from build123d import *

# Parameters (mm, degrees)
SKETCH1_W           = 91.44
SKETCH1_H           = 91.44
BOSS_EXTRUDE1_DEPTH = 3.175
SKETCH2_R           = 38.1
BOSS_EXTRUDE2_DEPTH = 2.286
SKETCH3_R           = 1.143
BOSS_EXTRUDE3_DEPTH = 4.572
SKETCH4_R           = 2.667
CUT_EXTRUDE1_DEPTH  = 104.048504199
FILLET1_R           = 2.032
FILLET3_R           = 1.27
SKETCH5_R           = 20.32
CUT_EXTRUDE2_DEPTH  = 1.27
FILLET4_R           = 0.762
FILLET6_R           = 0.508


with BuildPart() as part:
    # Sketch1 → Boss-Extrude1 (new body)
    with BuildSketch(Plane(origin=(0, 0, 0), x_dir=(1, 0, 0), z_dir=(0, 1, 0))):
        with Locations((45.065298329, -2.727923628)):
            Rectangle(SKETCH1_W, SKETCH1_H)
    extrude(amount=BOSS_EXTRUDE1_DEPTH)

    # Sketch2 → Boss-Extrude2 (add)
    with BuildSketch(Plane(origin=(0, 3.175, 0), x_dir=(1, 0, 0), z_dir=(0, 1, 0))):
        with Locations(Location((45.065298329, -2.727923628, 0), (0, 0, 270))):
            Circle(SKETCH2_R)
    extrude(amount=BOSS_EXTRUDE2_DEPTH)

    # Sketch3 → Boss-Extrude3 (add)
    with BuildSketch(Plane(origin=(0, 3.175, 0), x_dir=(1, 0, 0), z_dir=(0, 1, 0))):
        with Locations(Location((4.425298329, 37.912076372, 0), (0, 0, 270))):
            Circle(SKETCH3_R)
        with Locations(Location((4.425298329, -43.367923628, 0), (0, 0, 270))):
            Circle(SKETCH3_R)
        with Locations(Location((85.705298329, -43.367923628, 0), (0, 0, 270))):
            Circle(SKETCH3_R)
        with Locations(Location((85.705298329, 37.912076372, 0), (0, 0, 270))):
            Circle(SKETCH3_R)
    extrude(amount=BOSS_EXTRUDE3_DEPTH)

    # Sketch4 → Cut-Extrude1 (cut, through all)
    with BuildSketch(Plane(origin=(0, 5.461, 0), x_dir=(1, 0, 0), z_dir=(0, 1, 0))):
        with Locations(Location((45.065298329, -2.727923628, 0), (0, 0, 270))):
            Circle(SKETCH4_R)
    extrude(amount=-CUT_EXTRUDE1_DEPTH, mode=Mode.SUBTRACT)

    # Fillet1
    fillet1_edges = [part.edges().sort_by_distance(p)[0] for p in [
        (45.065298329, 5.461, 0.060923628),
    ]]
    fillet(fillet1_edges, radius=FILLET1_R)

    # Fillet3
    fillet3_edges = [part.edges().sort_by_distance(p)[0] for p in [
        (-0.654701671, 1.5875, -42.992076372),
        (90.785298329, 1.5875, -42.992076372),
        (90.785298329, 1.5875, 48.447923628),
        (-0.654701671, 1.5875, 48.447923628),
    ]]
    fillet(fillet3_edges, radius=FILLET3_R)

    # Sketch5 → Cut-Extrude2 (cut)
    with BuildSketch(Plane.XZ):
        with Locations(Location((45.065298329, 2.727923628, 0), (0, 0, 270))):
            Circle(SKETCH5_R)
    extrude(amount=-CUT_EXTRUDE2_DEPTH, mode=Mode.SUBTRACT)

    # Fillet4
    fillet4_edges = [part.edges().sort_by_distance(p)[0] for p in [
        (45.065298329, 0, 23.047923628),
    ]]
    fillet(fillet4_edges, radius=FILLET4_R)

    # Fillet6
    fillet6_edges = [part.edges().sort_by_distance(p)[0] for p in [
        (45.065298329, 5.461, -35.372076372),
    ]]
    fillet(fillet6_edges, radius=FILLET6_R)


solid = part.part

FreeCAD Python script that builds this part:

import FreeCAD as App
import Part
import Sketcher

V = App.Vector
Q = App.Units.Quantity


def edges_at(feature, points):
    """Names of the edges that pass closest to the given points."""
    edges = feature.Shape.Edges
    near = lambda p: min(range(len(edges)), key=lambda i: edges[i].distToShape(Part.Vertex(*p))[0])
    return sorted({f"Edge{near(p) + 1}" for p in points})

doc = App.newDocument("Part")
body = doc.addObject("PartDesign::Body", "Body")

sketch1 = body.newObject("Sketcher::SketchObject", "Sketch")
sketch1.AttachmentSupport = (doc.getObject("XZ_Plane"), [""])
sketch1.MapMode = "FlatFace"
sketch1.addGeometry([
    Part.LineSegment(V(-1, -43, 0), V(-1, 48, 0)),
    Part.LineSegment(V(-1, 48, 0), V(91, 48, 0)),
    Part.LineSegment(V(91, 48, 0), V(91, -43, 0)),
    Part.LineSegment(V(91, -43, 0), V(-1, -43, 0)),
], False)
sketch1.addConstraint([
    Sketcher.Constraint("Coincident", 0, 2, 1, 1),
    Sketcher.Constraint("Coincident", 1, 2, 2, 1),
    Sketcher.Constraint("Coincident", 2, 2, 3, 1),
    Sketcher.Constraint("Coincident", 3, 2, 0, 1),
    Sketcher.Constraint("Vertical", 0),
    Sketcher.Constraint("Horizontal", 1),
    Sketcher.Constraint("Vertical", 2),
    Sketcher.Constraint("Horizontal", 3),
    Sketcher.Constraint("Equal", 3, 0),
    Sketcher.Constraint("DistanceX", 1, 1, 1, 2, Q("3.6 in")),
    Sketcher.Constraint("DistanceX", 0, 2, -1, 1, Q("0.654702 mm")),
    Sketcher.Constraint("DistanceY", -1, 1, 0, 2, Q("48.447924 mm")),
])
pad1 = body.newObject("PartDesign::Pad", "Pad")
pad1.Profile = sketch1
pad1.Length = Q("0.125 in")
pad1.Reversed = True

sketch2 = body.newObject("Sketcher::SketchObject", "Sketch001")
sketch2.AttachmentSupport = (doc.getObject("XZ_Plane"), [""])
sketch2.MapMode = "FlatFace"
sketch2.AttachmentOffset = App.Placement(V(0, 0, -0.125 * 25.4), App.Rotation())
sketch2.addGeometry(Part.Circle(V(45, 3, 0), V(0, 0, 1), 38), False)
sketch2.addConstraint([
    Sketcher.Constraint("Diameter", 0, Q("3 in")),
    Sketcher.Constraint("DistanceX", -1, 1, 0, 3, Q("45.065298 mm")),
    Sketcher.Constraint("DistanceY", -1, 1, 0, 3, Q("2.727924 mm")),
])
pad2 = body.newObject("PartDesign::Pad", "Pad001")
pad2.Profile = sketch2
pad2.Length = Q("0.09 in")
pad2.Reversed = True

sketch3 = body.newObject("Sketcher::SketchObject", "Sketch002")
sketch3.AttachmentSupport = (doc.getObject("XZ_Plane"), [""])
sketch3.MapMode = "FlatFace"
sketch3.AttachmentOffset = App.Placement(V(0, 0, -0.125 * 25.4), App.Rotation())
sketch3.addGeometry([
    Part.Circle(V(4.4, -37.9, 0), V(0, 0, 1), 1.1),
    Part.Circle(V(4.4, 43.4, 0), V(0, 0, 1), 1.1),
    Part.Circle(V(85.7, 43.4, 0), V(0, 0, 1), 1.1),
    Part.Circle(V(85.7, -37.9, 0), V(0, 0, 1), 1.1),
], False)
sketch3.addConstraint([
    Sketcher.Constraint("Equal", 0, 1),
    Sketcher.Constraint("Equal", 1, 2),
    Sketcher.Constraint("Equal", 2, 3),
    Sketcher.Constraint("Horizontal", 1, 3, 2, 3),
    Sketcher.Constraint("Horizontal", 0, 3, 3, 3),
    Sketcher.Constraint("Vertical", 0, 3, 1, 3),
    Sketcher.Constraint("Vertical", 2, 3, 3, 3),
    Sketcher.Constraint("Diameter", 0, Q("0.09 in")),
    Sketcher.Constraint("DistanceY", 0, 3, 1, 3, Q("3.2 in")),
    Sketcher.Constraint("DistanceX", 1, 3, 2, 3, Q("3.2 in")),
    Sketcher.Constraint("DistanceX", -1, 1, 0, 3, Q("4.425298 mm")),
    Sketcher.Constraint("DistanceY", 0, 3, -1, 1, Q("37.912076 mm")),
])
pad3 = body.newObject("PartDesign::Pad", "Pad002")
pad3.Profile = sketch3
pad3.Length = Q("0.18 in")
pad3.Reversed = True

sketch4 = body.newObject("Sketcher::SketchObject", "Sketch003")
sketch4.AttachmentSupport = (doc.getObject("XZ_Plane"), [""])
sketch4.MapMode = "FlatFace"
sketch4.AttachmentOffset = App.Placement(V(0, 0, -0.215 * 25.4), App.Rotation())
sketch4.addGeometry(Part.Circle(V(45.1, 2.7, 0), V(0, 0, 1), 2.7), False)
sketch4.addConstraint([
    Sketcher.Constraint("Diameter", 0, Q("0.21 in")),
    Sketcher.Constraint("DistanceX", -1, 1, 0, 3, Q("45.065298 mm")),
    Sketcher.Constraint("DistanceY", -1, 1, 0, 3, Q("2.727924 mm")),
])
pocket1 = body.newObject("PartDesign::Pocket", "Pocket")
pocket1.Profile = sketch4
pocket1.Type = "ThroughAll"
pocket1.Reversed = True
doc.recompute()

fillet = body.newObject("PartDesign::Fillet", "Fillet")
fillet.Base = (pocket1, edges_at(pocket1, [(45.065, 5.461, 0.061)]))
fillet.Radius = Q("0.08 in")
doc.recompute()

fillet2 = body.newObject("PartDesign::Fillet", "Fillet001")
fillet2.Base = (fillet, edges_at(fillet, [
    (-0.655, 1.587, -42.992),
    (90.785, 1.587, -42.992),
    (90.785, 1.587, 48.448),
    (-0.655, 1.587, 48.448),
]))
fillet2.Radius = Q("0.05 in")

sketch5 = body.newObject("Sketcher::SketchObject", "Sketch004")
sketch5.AttachmentSupport = (doc.getObject("XZ_Plane"), [""])
sketch5.MapMode = "FlatFace"
sketch5.addGeometry(Part.Circle(V(45, 3, 0), V(0, 0, 1), 20), False)
sketch5.addConstraint([
    Sketcher.Constraint("Diameter", 0, Q("1.6 in")),
    Sketcher.Constraint("DistanceX", -1, 1, 0, 3, Q("45.065298 mm")),
    Sketcher.Constraint("DistanceY", -1, 1, 0, 3, Q("2.727924 mm")),
])
pocket2 = body.newObject("PartDesign::Pocket", "Pocket001")
pocket2.Profile = sketch5
pocket2.Length = Q("0.05 in")
doc.recompute()

fillet3 = body.newObject("PartDesign::Fillet", "Fillet002")
fillet3.Base = (pocket2, edges_at(pocket2, [(45.065, 0, 23.048)]))
fillet3.Radius = Q("0.03 in")
doc.recompute()

fillet4 = body.newObject("PartDesign::Fillet", "Fillet003")
fillet4.Base = (fillet3, edges_at(fillet3, [(45.065, 5.461, -35.372)]))
fillet4.Radius = Q("0.02 in")

doc.recompute()
